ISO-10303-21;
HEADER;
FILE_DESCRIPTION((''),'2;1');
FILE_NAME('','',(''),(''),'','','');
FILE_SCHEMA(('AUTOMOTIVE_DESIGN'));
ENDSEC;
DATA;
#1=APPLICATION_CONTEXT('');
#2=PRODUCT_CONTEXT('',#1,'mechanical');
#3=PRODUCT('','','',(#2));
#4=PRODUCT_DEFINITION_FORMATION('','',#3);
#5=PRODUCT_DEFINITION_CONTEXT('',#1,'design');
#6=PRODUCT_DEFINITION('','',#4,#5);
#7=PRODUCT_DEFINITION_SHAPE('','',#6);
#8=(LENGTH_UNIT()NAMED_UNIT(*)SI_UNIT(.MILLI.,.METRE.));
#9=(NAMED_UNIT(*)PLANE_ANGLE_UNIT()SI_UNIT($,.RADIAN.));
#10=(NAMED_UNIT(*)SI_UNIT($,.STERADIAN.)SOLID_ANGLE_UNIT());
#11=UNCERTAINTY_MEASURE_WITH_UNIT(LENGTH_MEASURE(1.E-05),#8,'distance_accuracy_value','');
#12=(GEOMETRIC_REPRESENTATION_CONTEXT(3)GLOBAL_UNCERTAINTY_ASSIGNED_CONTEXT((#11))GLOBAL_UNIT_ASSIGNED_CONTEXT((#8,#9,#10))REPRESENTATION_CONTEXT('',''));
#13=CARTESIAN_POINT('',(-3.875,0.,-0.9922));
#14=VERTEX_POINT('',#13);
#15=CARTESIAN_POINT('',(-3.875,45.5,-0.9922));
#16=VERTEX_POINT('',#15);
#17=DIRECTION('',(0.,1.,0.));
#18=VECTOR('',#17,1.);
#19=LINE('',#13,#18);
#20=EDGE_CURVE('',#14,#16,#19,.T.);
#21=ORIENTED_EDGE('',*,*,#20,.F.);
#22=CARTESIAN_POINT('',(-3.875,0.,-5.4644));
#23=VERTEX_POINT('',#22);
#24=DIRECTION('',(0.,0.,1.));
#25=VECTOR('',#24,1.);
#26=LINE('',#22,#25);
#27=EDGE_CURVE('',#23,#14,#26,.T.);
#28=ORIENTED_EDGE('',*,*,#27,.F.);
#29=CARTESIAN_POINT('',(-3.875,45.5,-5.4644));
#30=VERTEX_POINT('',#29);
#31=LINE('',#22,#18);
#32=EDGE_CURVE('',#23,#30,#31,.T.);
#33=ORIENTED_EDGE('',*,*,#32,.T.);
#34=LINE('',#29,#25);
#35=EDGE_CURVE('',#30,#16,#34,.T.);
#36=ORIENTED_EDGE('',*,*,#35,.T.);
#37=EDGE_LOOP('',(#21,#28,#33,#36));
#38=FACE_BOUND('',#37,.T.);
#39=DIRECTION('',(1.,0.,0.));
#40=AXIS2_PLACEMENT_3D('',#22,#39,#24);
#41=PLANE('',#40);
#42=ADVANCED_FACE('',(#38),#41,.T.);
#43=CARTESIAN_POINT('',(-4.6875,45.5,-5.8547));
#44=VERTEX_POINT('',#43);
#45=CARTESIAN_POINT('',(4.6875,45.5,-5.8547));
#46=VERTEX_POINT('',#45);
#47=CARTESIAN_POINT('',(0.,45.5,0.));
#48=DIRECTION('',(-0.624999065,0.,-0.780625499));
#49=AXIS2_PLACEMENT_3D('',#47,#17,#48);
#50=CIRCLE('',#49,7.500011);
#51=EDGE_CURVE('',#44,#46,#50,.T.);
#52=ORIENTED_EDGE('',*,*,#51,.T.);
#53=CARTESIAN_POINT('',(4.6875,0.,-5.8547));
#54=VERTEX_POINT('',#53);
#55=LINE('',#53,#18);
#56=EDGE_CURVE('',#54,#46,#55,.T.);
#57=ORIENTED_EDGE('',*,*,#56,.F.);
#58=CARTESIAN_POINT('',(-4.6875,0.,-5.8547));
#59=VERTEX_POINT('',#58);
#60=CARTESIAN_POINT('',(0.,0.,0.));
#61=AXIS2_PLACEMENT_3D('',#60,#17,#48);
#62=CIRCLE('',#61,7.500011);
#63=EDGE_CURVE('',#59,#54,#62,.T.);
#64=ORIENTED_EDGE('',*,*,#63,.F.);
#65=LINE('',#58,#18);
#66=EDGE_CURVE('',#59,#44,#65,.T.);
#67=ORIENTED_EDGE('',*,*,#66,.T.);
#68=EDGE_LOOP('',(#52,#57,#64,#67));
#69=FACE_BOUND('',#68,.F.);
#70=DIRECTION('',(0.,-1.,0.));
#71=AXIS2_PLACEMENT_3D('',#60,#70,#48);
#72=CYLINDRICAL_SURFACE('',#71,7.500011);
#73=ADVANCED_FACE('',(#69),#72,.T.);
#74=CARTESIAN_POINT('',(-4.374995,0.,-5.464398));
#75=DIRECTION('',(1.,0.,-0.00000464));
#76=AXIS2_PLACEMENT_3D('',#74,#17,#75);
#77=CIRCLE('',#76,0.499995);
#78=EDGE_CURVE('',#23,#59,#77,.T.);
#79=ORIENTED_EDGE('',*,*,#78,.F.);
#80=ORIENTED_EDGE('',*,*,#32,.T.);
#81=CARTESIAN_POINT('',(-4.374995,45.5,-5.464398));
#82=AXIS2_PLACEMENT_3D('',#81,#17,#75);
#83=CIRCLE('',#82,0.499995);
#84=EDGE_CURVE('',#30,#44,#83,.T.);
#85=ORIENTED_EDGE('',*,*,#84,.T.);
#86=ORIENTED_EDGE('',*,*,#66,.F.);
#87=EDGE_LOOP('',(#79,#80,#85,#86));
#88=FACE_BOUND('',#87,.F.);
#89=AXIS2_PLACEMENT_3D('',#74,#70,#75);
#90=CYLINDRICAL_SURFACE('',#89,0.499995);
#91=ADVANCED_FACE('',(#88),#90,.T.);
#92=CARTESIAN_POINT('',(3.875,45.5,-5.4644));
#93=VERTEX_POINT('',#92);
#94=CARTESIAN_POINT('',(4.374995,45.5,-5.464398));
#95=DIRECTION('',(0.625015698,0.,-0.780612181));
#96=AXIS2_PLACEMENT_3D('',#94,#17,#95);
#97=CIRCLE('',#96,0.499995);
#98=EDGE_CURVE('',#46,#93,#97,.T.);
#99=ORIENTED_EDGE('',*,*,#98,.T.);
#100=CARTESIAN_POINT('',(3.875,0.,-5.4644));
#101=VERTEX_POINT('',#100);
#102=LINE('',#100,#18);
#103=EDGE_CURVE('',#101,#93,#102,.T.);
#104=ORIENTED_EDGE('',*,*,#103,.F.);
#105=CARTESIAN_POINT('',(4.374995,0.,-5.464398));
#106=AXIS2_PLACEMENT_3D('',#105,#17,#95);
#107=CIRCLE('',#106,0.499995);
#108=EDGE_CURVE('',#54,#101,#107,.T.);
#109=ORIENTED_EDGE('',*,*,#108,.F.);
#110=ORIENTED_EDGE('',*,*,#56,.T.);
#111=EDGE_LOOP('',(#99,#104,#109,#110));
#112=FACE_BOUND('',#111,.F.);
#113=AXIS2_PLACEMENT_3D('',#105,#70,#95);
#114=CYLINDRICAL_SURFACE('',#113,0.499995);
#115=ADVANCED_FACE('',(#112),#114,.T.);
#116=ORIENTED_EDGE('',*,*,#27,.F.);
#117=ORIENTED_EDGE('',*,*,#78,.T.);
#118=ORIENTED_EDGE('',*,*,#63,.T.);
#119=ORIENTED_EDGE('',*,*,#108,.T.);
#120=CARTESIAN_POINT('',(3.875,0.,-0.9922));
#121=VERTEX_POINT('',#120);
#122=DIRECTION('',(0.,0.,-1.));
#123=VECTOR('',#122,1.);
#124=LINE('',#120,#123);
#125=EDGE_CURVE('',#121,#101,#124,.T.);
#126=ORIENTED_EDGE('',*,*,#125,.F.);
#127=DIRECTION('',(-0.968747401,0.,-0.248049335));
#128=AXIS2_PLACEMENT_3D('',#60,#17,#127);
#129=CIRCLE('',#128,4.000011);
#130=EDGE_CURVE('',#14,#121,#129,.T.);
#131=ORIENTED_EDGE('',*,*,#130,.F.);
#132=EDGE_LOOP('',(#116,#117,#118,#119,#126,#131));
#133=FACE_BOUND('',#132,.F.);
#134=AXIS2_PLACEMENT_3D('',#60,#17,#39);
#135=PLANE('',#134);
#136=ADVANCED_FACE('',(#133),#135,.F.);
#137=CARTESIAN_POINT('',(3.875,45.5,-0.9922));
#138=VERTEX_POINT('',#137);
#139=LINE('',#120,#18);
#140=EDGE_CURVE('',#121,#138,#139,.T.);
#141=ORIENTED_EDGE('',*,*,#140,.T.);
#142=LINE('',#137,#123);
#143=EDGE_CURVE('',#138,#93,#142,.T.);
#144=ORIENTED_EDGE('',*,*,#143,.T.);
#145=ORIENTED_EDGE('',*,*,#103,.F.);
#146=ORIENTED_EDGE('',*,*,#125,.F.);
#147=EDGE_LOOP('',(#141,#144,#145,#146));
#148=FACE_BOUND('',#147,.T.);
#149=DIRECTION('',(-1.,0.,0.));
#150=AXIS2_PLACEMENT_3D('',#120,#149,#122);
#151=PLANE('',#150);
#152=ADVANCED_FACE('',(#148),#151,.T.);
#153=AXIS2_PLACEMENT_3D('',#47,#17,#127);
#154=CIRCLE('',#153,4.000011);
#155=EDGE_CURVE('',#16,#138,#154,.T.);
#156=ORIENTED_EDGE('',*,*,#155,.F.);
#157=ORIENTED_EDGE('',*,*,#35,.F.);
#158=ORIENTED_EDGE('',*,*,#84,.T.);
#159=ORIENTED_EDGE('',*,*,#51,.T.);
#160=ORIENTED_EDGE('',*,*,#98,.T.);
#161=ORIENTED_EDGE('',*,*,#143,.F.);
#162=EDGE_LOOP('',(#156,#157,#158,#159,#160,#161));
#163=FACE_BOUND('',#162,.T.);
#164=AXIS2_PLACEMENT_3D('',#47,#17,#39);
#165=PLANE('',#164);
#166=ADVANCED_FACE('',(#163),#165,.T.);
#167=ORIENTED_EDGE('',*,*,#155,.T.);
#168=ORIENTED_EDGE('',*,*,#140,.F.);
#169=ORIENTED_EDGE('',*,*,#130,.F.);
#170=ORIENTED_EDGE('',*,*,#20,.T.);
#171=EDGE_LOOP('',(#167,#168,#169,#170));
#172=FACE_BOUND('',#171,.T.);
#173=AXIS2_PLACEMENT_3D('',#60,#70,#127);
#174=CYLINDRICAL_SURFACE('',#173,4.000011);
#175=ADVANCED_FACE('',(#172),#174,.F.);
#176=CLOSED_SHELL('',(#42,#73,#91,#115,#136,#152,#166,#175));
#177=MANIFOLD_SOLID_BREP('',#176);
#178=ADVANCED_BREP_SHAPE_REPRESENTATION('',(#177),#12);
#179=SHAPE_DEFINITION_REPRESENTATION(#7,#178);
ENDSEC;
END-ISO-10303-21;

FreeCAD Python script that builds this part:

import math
import FreeCAD as App
import Part
import Sketcher
from FreeCAD import Vector
Q = App.Units.Quantity

doc = App.newDocument("Part")
body = doc.addObject("PartDesign::Body", "Body")

# Sketch on XZ plane
sketch1 = body.newObject("Sketcher::SketchObject", "Sketch")
sketch1.AttachmentSupport = (doc.getObject("XZ_Plane"), [""])
sketch1.MapMode = "FlatFace"
sketch1.addGeometry(Part.LineSegment(Vector(-3.875, -0.9922, 0), Vector(-3.875, -5.4644, 0)), False)
sketch1.addGeometry(Part.ArcOfCircle(Part.Circle(Vector(-4.375, -5.4644, 0), Vector(0, 0, 1), 0.5), math.radians(-128.683074), math.radians(0)), False)
sketch1.addGeometry(Part.ArcOfCircle(Part.Circle(Vector(0, 0, 0), Vector(0, 0, 1), 7.500011), math.radians(-51.317881), math.radians(231.317881)), False)
sketch1.addGeometry(Part.ArcOfCircle(Part.Circle(Vector(4.375, -5.4644, 0), Vector(0, 0, 1), 0.49999), math.radians(180), math.radians(308.683074)), False)
sketch1.addGeometry(Part.LineSegment(Vector(3.875, -5.4644, 0), Vector(3.875, -0.9922, 0)), False)
sketch1.addGeometry(Part.ArcOfCircle(Part.Circle(Vector(0, 0, 0), Vector(0, 0, 1), 4.000011), math.radians(-14.362112), math.radians(194.362112)), False)
sketch1.addConstraint(Sketcher.Constraint("Tangent", 0, 2, 1, 2))
sketch1.addConstraint(Sketcher.Constraint("Tangent", 1, 1, 2, 2))
sketch1.addConstraint(Sketcher.Constraint("Tangent", 2, 1, 3, 2))
sketch1.addConstraint(Sketcher.Constraint("Tangent", 3, 1, 4, 1))
sketch1.addConstraint(Sketcher.Constraint("Coincident", 4, 2, 5, 1))
sketch1.addConstraint(Sketcher.Constraint("Coincident", 5, 2, 0, 1))
sketch1.addConstraint(Sketcher.Constraint("Vertical", 0))
sketch1.addConstraint(Sketcher.Constraint("Vertical", 4))
sketch1.addConstraint(Sketcher.Constraint("Coincident", 2, 3, -1, 1))
sketch1.addConstraint(Sketcher.Constraint("Coincident", 5, 3, -1, 1))
sketch1.addConstraint(Sketcher.Constraint("Equal", 1, 3))
sketch1.addConstraint(Sketcher.Constraint("Horizontal", 1, 3, 3, 3))
sketch1.addConstraint(Sketcher.Constraint("Radius", 5, Q("4 mm")))
sketch1.addConstraint(Sketcher.Constraint("Radius", 1, Q("0.5 mm")))
sketch1.addConstraint(Sketcher.Constraint("Radius", 2, Q("7.5 mm")))
sketch1.addConstraint(Sketcher.Constraint("DistanceX", 0, 2, 3, 1, Q("7.75 mm")))
pad1 = body.newObject("PartDesign::Pad", "Pad")
pad1.Profile = sketch1
pad1.Length = 45.5
pad1.Reversed = True

doc.recompute()
